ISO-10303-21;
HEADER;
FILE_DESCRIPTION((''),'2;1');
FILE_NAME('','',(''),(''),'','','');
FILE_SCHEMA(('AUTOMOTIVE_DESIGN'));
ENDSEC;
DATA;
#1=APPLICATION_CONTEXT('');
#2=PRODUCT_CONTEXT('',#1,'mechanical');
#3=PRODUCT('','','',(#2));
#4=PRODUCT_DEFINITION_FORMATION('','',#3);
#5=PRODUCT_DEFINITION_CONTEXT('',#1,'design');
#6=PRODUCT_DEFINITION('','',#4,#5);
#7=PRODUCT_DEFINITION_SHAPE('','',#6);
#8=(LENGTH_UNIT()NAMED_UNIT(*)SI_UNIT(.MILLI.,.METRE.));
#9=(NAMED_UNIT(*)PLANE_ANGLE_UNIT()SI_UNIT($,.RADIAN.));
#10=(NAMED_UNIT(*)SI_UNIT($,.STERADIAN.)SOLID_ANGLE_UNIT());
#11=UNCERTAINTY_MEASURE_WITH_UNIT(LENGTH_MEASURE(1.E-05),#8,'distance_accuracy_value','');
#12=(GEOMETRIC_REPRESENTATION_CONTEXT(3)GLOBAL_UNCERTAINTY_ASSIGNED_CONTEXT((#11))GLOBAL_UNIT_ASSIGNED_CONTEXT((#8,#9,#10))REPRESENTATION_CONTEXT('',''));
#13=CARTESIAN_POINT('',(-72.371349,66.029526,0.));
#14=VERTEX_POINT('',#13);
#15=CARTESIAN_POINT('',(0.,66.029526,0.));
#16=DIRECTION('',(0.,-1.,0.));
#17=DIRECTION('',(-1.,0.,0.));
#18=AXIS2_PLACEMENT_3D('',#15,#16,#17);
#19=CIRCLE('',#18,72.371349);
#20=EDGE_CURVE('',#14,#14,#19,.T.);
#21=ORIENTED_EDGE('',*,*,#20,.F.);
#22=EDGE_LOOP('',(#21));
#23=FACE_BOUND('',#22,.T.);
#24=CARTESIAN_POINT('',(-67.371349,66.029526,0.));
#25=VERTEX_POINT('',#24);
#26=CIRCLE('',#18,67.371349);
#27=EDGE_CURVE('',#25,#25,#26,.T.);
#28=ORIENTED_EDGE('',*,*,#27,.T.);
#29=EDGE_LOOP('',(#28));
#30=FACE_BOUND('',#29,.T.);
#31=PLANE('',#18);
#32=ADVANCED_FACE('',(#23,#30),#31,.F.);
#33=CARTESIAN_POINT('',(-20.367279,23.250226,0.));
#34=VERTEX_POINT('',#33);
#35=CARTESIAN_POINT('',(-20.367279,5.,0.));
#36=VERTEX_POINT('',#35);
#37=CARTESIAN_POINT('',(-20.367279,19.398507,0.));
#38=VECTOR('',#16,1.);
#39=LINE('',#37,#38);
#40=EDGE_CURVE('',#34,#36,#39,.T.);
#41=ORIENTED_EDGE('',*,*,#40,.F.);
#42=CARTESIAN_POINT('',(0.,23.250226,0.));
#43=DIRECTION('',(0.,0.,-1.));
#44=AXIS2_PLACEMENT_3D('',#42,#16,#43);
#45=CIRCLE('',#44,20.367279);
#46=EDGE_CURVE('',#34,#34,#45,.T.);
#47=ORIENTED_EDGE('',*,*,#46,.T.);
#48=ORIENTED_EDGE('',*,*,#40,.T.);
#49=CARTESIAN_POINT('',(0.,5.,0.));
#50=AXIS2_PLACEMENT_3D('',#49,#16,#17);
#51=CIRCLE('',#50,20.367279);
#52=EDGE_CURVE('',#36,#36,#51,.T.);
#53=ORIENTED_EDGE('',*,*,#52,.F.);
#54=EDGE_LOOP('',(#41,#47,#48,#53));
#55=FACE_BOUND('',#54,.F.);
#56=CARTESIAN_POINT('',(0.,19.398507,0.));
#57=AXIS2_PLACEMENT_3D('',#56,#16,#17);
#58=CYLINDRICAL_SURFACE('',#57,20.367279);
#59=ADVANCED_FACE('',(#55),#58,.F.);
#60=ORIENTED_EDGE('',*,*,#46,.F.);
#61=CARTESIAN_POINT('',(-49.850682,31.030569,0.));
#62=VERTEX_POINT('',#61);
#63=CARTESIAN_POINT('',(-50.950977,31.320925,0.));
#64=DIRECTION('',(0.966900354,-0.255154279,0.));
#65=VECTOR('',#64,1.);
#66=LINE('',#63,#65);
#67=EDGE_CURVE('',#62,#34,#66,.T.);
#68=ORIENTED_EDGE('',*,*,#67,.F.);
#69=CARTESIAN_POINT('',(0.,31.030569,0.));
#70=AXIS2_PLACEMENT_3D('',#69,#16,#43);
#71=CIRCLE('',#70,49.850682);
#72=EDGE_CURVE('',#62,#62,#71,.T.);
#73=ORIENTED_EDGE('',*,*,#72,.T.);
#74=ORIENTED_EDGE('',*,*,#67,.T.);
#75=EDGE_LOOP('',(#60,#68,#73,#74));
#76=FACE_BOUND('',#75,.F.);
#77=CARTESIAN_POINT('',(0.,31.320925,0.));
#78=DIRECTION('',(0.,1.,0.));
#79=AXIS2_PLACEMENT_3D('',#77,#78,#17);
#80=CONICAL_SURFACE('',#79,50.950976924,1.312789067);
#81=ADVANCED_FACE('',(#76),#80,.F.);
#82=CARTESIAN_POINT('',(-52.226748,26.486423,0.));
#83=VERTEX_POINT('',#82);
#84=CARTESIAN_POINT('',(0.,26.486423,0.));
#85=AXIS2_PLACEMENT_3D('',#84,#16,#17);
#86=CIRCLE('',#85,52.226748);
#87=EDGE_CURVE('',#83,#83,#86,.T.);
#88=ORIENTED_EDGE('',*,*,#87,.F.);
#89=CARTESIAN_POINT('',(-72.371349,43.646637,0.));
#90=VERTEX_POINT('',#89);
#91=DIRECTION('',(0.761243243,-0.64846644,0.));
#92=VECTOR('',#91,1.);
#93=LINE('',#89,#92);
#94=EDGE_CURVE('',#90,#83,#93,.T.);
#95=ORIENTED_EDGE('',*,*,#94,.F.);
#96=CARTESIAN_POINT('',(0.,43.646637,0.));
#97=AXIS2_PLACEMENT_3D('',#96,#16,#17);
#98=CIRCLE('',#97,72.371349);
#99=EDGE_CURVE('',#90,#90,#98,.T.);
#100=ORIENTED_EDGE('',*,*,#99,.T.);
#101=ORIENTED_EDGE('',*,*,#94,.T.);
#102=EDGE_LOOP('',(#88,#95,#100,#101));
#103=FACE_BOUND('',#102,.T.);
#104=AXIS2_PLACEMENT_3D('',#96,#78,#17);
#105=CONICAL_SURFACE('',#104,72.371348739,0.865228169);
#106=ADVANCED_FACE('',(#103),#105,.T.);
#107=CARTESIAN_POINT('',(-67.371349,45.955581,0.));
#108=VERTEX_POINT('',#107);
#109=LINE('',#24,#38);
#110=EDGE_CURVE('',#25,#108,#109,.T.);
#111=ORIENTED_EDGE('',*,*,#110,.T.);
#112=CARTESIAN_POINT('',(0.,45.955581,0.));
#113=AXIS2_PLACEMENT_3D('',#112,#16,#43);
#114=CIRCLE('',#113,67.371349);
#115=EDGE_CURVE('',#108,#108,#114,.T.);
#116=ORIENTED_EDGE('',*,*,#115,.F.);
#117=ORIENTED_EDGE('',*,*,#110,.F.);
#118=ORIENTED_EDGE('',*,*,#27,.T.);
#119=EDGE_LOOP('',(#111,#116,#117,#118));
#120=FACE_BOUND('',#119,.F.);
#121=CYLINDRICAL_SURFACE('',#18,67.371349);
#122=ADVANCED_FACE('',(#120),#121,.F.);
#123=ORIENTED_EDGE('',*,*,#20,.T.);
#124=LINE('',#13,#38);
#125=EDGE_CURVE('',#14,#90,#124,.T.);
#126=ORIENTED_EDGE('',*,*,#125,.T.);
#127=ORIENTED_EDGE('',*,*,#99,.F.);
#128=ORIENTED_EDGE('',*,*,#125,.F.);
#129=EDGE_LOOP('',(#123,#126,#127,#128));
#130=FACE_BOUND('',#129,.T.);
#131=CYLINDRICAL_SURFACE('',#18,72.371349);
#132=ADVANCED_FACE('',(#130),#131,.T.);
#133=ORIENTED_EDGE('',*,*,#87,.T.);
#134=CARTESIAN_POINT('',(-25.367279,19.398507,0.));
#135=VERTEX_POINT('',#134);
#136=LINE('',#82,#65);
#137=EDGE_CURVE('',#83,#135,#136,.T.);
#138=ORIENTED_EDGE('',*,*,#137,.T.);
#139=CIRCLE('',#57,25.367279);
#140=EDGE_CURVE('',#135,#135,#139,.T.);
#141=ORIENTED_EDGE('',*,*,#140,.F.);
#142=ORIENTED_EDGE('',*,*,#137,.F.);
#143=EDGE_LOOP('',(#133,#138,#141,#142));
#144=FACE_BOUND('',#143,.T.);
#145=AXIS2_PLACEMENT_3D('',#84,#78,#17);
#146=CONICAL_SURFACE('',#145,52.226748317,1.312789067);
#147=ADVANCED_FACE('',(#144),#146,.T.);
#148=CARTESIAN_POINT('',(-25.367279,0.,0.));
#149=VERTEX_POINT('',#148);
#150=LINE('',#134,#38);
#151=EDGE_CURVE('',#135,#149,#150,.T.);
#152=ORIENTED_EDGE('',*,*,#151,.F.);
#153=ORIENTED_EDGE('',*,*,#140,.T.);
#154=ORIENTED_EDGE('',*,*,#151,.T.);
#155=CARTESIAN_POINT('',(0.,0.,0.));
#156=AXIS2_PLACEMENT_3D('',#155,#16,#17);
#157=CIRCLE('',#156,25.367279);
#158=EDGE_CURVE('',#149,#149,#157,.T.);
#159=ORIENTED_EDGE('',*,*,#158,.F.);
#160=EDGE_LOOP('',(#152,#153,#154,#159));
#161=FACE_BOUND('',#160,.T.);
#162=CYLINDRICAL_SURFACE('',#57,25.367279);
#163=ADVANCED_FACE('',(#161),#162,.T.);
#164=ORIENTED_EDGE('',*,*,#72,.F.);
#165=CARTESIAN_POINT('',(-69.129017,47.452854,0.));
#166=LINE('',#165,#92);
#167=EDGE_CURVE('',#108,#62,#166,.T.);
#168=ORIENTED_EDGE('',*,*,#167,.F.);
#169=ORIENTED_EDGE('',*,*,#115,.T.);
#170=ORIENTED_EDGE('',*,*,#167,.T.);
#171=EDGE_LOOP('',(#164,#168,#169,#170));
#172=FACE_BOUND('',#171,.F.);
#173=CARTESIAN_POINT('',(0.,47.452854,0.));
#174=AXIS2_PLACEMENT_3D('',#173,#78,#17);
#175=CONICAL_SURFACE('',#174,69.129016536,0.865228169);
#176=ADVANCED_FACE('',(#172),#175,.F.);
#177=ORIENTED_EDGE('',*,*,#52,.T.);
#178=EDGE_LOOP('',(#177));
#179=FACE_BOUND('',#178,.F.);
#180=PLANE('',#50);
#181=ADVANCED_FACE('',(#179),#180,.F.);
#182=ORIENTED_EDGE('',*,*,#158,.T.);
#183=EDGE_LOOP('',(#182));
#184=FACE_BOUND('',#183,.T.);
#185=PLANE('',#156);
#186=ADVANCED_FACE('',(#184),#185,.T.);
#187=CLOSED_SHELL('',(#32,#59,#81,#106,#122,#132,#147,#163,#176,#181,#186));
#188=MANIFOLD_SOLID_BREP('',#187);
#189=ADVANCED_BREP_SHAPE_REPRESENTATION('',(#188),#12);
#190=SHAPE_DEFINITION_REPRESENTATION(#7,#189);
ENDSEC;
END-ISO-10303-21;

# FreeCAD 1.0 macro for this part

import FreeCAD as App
import Part
import Sketcher

V = App.Vector


def faces_at(feature, points):
    """Names of the faces that lie closest to the given points."""
    faces = feature.Shape.Faces
    near = lambda p: min(range(len(faces)), key=lambda i: faces[i].distToShape(Part.Vertex(*p))[0])
    return sorted({f"Face{near(p) + 1}" for p in points})


def add_polygon(sketch, points):
    """Adds a closed chain of lines whose ends are joined by coincident constraints."""
    first, n = sketch.GeometryCount, len(points)
    for a, b in zip(points, points[1:] + points[:1]):
        sketch.addGeometry(Part.LineSegment(App.Vector(*a, 0), App.Vector(*b, 0)), False)
    for i in range(n):
        sketch.addConstraint(Sketcher.Constraint("Coincident", first + i, 2, first + (i + 1) % n, 1))

doc = App.newDocument("Part")
body = doc.addObject("PartDesign::Body", "Body")

# Sketch on XY plane
sketch1 = body.newObject("Sketcher::SketchObject", "Sketch")
sketch1.AttachmentSupport = (doc.getObject("XY_Plane"), [""])
sketch1.MapMode = "FlatFace"
add_polygon(sketch1, [(-25, 19), (-25, 0), (0, 0), (0, 66), (-72, 66), (-72, 44), (-52, 26)])  # lines 0-6
sketch1.addConstraint([
    Sketcher.Constraint("Vertical", 0),
    Sketcher.Constraint("Horizontal", 1),
    Sketcher.Constraint("Vertical", 2),
    Sketcher.Constraint("Horizontal", 3),
    Sketcher.Constraint("Vertical", 4),
    Sketcher.Constraint("Coincident", 1, 2, -1, 1),
    Sketcher.Constraint("DistanceX", 1, 1, 1, 2, 25.367279),
    Sketcher.Constraint("DistanceX", 3, 2, 3, 1, 72.371349),
    Sketcher.Constraint("DistanceY", 4, 2, 4, 1, 22.382889),
    Sketcher.Constraint("DistanceX", 4, 2, 5, 2, 20.1446),
    Sketcher.Constraint("DistanceY", 0, 2, 0, 1, 19.398507),
    Sketcher.Constraint("DistanceY", 2, 1, 2, 2, 66.029526),
    Sketcher.Constraint("Distance", 5, 26.462764),
])
revolution = body.newObject("PartDesign::Revolution", "Revolution")
revolution.Profile = sketch1
revolution.ReferenceAxis = (sketch1, ["V_Axis"])
revolution.Angle = 360
doc.recompute()

thickness = body.newObject("PartDesign::Thickness", "Thickness")
thickness.Base = (revolution, faces_at(revolution, [(0, 66.03, 0)]))
thickness.Value = 5
thickness.Reversed = True
thickness.Join = "Intersection"

doc.recompute()
